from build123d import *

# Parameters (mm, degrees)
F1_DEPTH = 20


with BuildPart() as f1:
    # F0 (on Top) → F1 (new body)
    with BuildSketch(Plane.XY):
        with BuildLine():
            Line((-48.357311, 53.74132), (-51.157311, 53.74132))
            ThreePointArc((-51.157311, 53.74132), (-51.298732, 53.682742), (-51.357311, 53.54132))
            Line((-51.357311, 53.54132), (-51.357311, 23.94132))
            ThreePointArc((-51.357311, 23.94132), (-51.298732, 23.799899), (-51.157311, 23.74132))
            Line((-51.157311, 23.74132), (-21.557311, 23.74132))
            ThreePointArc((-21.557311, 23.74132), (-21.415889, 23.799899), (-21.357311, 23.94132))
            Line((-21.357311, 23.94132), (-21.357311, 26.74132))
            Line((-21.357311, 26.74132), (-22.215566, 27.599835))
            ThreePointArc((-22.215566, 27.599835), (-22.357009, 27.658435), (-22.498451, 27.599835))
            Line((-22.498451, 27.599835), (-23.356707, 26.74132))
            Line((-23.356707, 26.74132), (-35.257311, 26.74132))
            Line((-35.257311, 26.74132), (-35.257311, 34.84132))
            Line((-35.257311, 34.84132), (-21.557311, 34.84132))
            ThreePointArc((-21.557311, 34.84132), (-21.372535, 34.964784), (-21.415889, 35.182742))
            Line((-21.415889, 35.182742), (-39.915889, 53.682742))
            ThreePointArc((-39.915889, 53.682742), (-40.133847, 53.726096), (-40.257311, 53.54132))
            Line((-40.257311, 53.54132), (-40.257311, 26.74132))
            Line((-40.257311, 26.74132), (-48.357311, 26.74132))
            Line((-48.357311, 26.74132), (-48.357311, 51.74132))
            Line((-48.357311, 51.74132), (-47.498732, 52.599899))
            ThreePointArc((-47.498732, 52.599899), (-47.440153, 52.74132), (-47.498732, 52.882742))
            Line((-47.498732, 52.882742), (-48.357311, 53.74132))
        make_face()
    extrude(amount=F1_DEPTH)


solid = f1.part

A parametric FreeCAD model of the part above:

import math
import FreeCAD as App
import Part
import Sketcher

V = App.Vector

doc = App.newDocument("Part")
params = doc.addObject("Spreadsheet::Sheet", "Params")
for row, (alias, value) in enumerate([
    ("sketch1_radius", "0.2 mm"),
    ("sketch1_height", "25 mm"),
    ("sketch1_width", "2.8 mm"),
    ("sketch1_width2", "29.6 mm"),
    ("sketch1_width3", "13.7 mm"),
    ("pad1_length", "20 mm"),
], start=1):
    params.set(f"A{row}", alias)
    params.set(f"B{row}", "=" + value)
    params.setAlias(f"B{row}", alias)

body = doc.addObject("PartDesign::Body", "Body")

sketch1 = doc.addObject("Sketcher::SketchObject", "Sketch")
body.addObject(sketch1)
sketch1.AttachmentSupport = (doc.XY_Plane, [""])
sketch1.MapMode = "FlatFace"
sketch1.addGeometry([
    Part.LineSegment(V(-48.357311, 53.74132, 0), V(-51.157311, 53.74132, 0)),
    Part.ArcOfCircle(Part.Circle(V(-51.157311, 53.54132, 0), V(0, 0, 1), 0.2), math.radians(89.999859), math.radians(180.000141)),
    Part.LineSegment(V(-51.357311, 53.54132, 0), V(-51.357311, 23.94132, 0)),
    Part.ArcOfCircle(Part.Circle(V(-51.15731, 23.941321, 0), V(0, 0, 1), 0.200001), math.radians(-179.999652), math.radians(-90.000348)),
    Part.LineSegment(V(-51.157311, 23.74132, 0), V(-21.557311, 23.74132, 0)),
    Part.ArcOfCircle(Part.Circle(V(-21.557311, 23.94132, 0), V(0, 0, 1), 0.2), math.radians(-90.000141), math.radians(0.000141)),
    Part.LineSegment(V(-21.357311, 23.94132, 0), V(-21.357311, 26.74132, 0)),
    Part.LineSegment(V(-21.357311, 26.74132, 0), V(-22.215566, 27.599835, 0)),
    Part.ArcOfCircle(Part.Circle(V(-22.357008, 27.458436, 0), V(0, 0, 1), 0.199999), math.radians(44.991288), math.radians(135.008712)),
    Part.LineSegment(V(-22.498451, 27.599835, 0), V(-23.356707, 26.74132, 0)),
    Part.LineSegment(V(-23.356707, 26.74132, 0), V(-35.257311, 26.74132, 0)),
    Part.LineSegment(V(-35.257311, 26.74132, 0), V(-35.257311, 34.84132, 0)),
    Part.LineSegment(V(-35.257311, 34.84132, 0), V(-21.557311, 34.84132, 0)),
    Part.ArcOfCircle(Part.Circle(V(-21.557312, 35.041321, 0), V(0, 0, 1), 0.200001), math.radians(-89.999783), math.radians(44.999675)),
    Part.LineSegment(V(-21.415889, 35.182742, 0), V(-39.915889, 53.682742, 0)),
    Part.ArcOfCircle(Part.Circle(V(-40.05731, 53.541319, 0), V(0, 0, 1), 0.200001), math.radians(45.000325), math.radians(179.999783)),
    Part.LineSegment(V(-40.257311, 53.54132, 0), V(-40.257311, 26.74132, 0)),
    Part.LineSegment(V(-40.257311, 26.74132, 0), V(-48.357311, 26.74132, 0)),
    Part.LineSegment(V(-48.357311, 26.74132, 0), V(-48.357311, 51.74132, 0)),
    Part.LineSegment(V(-48.357311, 51.74132, 0), V(-47.498732, 52.599899, 0)),
    Part.ArcOfCircle(Part.Circle(V(-47.640152, 52.741321, 0), V(0, 0, 1), 0.199999), math.radians(-45.000205), math.radians(45.000205)),
    Part.LineSegment(V(-47.498732, 52.882742, 0), V(-48.357311, 53.74132, 0)),
], False)
sketch1.addConstraint([
    Sketcher.Constraint("Coincident", 0, 2, 1, 1),
    Sketcher.Constraint("Coincident", 1, 2, 2, 1),
    Sketcher.Constraint("Coincident", 2, 2, 3, 1),
    Sketcher.Constraint("Coincident", 3, 2, 4, 1),
    Sketcher.Constraint("Coincident", 4, 2, 5, 1),
    Sketcher.Constraint("Coincident", 5, 2, 6, 1),
    Sketcher.Constraint("Coincident", 6, 2, 7, 1),
    Sketcher.Constraint("Tangent", 7, 2, 8, 1),
    Sketcher.Constraint("Tangent", 8, 2, 9, 1),
    Sketcher.Constraint("Coincident", 9, 2, 10, 1),
    Sketcher.Constraint("Coincident", 10, 2, 11, 1),
    Sketcher.Constraint("Coincident", 11, 2, 12, 1),
    Sketcher.Constraint("Coincident", 12, 2, 13, 1),
    Sketcher.Constraint("Coincident", 13, 2, 14, 1),
    Sketcher.Constraint("Coincident", 14, 2, 15, 1),
    Sketcher.Constraint("Coincident", 15, 2, 16, 1),
    Sketcher.Constraint("Coincident", 16, 2, 17, 1),
    Sketcher.Constraint("Coincident", 17, 2, 18, 1),
    Sketcher.Constraint("Coincident", 18, 2, 19, 1),
    Sketcher.Constraint("Coincident", 19, 2, 20, 1),
    Sketcher.Constraint("Coincident", 20, 2, 21, 1),
    Sketcher.Constraint("Coincident", 21, 2, 0, 1),
    Sketcher.Constraint("Horizontal", 0),
    Sketcher.Constraint("Vertical", 2),
    Sketcher.Constraint("Horizontal", 4),
    Sketcher.Constraint("Vertical", 6),
    Sketcher.Constraint("Horizontal", 10),
    Sketcher.Constraint("Vertical", 11),
    Sketcher.Constraint("Horizontal", 12),
    Sketcher.Constraint("Vertical", 16),
    Sketcher.Constraint("Horizontal", 17),
    Sketcher.Constraint("Vertical", 18),
    Sketcher.Constraint("Equal", 1, 3),
    Sketcher.Constraint("Equal", 3, 5),
    Sketcher.Constraint("Equal", 5, 8),
    Sketcher.Constraint("Equal", 8, 13),
    Sketcher.Constraint("Equal", 13, 15),
    Sketcher.Constraint("Equal", 15, 20),
    Sketcher.Constraint("Perpendicular", 14, 19),
    Sketcher.Constraint("Perpendicular", 19, 21),
    Sketcher.Constraint("Horizontal", 1, 3, 15, 3),
    Sketcher.Constraint("Horizontal", 15, 3, 1, 2),
    Sketcher.Constraint("Horizontal", 5, 3, 2, 2),
    Sketcher.Constraint("Horizontal", 2, 2, 5, 2),
    Sketcher.Constraint("Horizontal", 7, 2, 8, 2),
    Sketcher.Constraint("Horizontal", 6, 2, 9, 2),
    Sketcher.Constraint("Horizontal", 1, 2, 15, 2),
    Sketcher.Constraint("Horizontal", 10, 2, 16, 2),
    Sketcher.Constraint("Vertical", 5, 3, 13, 3),
    Sketcher.Constraint("Vertical", 3, 3, 0, 2),
    Sketcher.Constraint("Vertical", 0, 2, 3, 2),
    Sketcher.Constraint("Vertical", 13, 3, 4, 2),
    Sketcher.Constraint("Vertical", 4, 2, 12, 2),
    Sketcher.Constraint("Vertical", 19, 2, 20, 2),
    Sketcher.Constraint("Vertical", 18, 2, 21, 2),
    Sketcher.Constraint("Equal", 4, 2),
    Sketcher.Constraint("Equal", 0, 6),
    Sketcher.Constraint("Equal", 17, 11),
    Sketcher.Constraint("Radius", 1, 0.2),
    Sketcher.Constraint("DistanceY", 18, 1, 18, 2, 25.0),
    Sketcher.Constraint("DistanceX", 0, 2, 0, 1, 2.8),
    Sketcher.Constraint("DistanceX", 4, 1, 4, 2, 29.6),
    Sketcher.Constraint("DistanceX", 12, 1, 12, 2, 13.7),
    Sketcher.Constraint("DistanceX", 17, 2, 17, 1, 8.1),
    Sketcher.Constraint("DistanceY", -1, 1, 19, 2, 52.599899),
    Sketcher.Constraint("DistanceX", 3, 3, 8, 3, 28.800301),
    Sketcher.Constraint("DistanceY", 8, 3, 7, 2, 0.141399),
    Sketcher.Constraint("Distance", 14, 26.162951),
    Sketcher.Constraint("DistanceX", 1, 3, -1, 1, 51.157311),
    Sketcher.Constraint("DistanceY", -1, 1, 1, 3, 53.54132),
    Sketcher.Constraint("DistanceX", 13, 2, -1, 1, 21.415889),
])
sketch1.setExpression("Constraints[58]", "Params.sketch1_radius")
sketch1.setExpression("Constraints[59]", "Params.sketch1_height")
sketch1.setExpression("Constraints[60]", "Params.sketch1_width")
sketch1.setExpression("Constraints[61]", "Params.sketch1_width2")
sketch1.setExpression("Constraints[62]", "Params.sketch1_width3")
pad1 = doc.addObject("PartDesign::Pad", "Pad")
body.addObject(pad1)
pad1.Profile = sketch1
pad1.setExpression("Length", "Params.pad1_length")

doc.recompute()
